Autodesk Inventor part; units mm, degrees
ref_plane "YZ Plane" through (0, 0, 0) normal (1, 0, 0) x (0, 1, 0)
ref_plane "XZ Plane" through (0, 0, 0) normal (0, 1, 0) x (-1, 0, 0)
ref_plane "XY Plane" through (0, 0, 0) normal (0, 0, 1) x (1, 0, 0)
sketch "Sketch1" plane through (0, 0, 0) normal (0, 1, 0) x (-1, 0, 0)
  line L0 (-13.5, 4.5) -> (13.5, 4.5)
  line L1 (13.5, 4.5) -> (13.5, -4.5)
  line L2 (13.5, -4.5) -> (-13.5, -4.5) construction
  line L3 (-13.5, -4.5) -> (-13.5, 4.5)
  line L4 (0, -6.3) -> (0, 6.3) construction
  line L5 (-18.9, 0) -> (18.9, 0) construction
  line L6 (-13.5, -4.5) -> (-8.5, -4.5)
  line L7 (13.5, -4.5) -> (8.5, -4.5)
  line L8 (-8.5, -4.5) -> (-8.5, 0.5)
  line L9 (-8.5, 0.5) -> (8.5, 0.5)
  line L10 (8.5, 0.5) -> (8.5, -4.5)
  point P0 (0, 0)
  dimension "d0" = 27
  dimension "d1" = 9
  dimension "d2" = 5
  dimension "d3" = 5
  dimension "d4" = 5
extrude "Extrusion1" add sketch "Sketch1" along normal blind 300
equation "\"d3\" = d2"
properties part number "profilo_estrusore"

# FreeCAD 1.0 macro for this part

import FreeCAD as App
import Part
import Sketcher
Q = App.Units.Quantity

doc = App.newDocument("Part")
body = doc.addObject("PartDesign::Body", "Body")

# Sketch on XZ plane
sketch1 = doc.addObject("Sketcher::SketchObject", "Sketch")
body.addObject(sketch1)
sketch1.AttachmentSupport = (doc.XZ_Plane, [""])
sketch1.MapMode = "FlatFace"
sketch1.addGeometry([
    Part.LineSegment(App.Vector(-14, 4, 0), App.Vector(14, 4, 0)),  # 0
    Part.LineSegment(App.Vector(14, 4, 0), App.Vector(14, -4, 0)),  # 1
    Part.LineSegment(App.Vector(14, -4, 0), App.Vector(8, -4, 0)),  # 2
    Part.LineSegment(App.Vector(8, -4, 0), App.Vector(8, 0, 0)),  # 3
    Part.LineSegment(App.Vector(8, 0, 0), App.Vector(-8, 0, 0)),  # 4
    Part.LineSegment(App.Vector(-8, 0, 0), App.Vector(-8, -4, 0)),  # 5
    Part.LineSegment(App.Vector(-8, -4, 0), App.Vector(-14, -4, 0)),  # 6
    Part.LineSegment(App.Vector(-14, -4, 0), App.Vector(-14, 4, 0)),  # 7
], False)
sketch1.addConstraint([
    Sketcher.Constraint("Coincident", 0, 2, 1, 1),
    Sketcher.Constraint("Coincident", 1, 2, 2, 1),
    Sketcher.Constraint("Coincident", 2, 2, 3, 1),
    Sketcher.Constraint("Coincident", 3, 2, 4, 1),
    Sketcher.Constraint("Coincident", 4, 2, 5, 1),
    Sketcher.Constraint("Coincident", 5, 2, 6, 1),
    Sketcher.Constraint("Coincident", 6, 2, 7, 1),
    Sketcher.Constraint("Coincident", 7, 2, 0, 1),
    Sketcher.Constraint("Horizontal", 0),
    Sketcher.Constraint("Vertical", 1),
    Sketcher.Constraint("Horizontal", 2),
    Sketcher.Constraint("Vertical", 3),
    Sketcher.Constraint("Horizontal", 4),
    Sketcher.Constraint("Vertical", 5),
    Sketcher.Constraint("Horizontal", 6),
    Sketcher.Constraint("Vertical", 7),
    Sketcher.Constraint("Symmetric", 0, 2, 6, 2, -1, 1),
    Sketcher.Constraint("Symmetric", 2, 2, 5, 2, -2),
    Sketcher.Constraint("Equal", 6, 3),
    Sketcher.Constraint("DistanceX", 0, 1, 0, 2, Q("27 mm")),
    Sketcher.Constraint("DistanceX", 2, 2, 2, 1, Q("5 mm")),
    Sketcher.Constraint("DistanceY", 1, 2, 1, 1, Q("9 mm")),
])
pad1 = doc.addObject("PartDesign::Pad", "Pad")
body.addObject(pad1)
pad1.Profile = sketch1
pad1.Length = 300
pad1.Reversed = True

doc.recompute()
